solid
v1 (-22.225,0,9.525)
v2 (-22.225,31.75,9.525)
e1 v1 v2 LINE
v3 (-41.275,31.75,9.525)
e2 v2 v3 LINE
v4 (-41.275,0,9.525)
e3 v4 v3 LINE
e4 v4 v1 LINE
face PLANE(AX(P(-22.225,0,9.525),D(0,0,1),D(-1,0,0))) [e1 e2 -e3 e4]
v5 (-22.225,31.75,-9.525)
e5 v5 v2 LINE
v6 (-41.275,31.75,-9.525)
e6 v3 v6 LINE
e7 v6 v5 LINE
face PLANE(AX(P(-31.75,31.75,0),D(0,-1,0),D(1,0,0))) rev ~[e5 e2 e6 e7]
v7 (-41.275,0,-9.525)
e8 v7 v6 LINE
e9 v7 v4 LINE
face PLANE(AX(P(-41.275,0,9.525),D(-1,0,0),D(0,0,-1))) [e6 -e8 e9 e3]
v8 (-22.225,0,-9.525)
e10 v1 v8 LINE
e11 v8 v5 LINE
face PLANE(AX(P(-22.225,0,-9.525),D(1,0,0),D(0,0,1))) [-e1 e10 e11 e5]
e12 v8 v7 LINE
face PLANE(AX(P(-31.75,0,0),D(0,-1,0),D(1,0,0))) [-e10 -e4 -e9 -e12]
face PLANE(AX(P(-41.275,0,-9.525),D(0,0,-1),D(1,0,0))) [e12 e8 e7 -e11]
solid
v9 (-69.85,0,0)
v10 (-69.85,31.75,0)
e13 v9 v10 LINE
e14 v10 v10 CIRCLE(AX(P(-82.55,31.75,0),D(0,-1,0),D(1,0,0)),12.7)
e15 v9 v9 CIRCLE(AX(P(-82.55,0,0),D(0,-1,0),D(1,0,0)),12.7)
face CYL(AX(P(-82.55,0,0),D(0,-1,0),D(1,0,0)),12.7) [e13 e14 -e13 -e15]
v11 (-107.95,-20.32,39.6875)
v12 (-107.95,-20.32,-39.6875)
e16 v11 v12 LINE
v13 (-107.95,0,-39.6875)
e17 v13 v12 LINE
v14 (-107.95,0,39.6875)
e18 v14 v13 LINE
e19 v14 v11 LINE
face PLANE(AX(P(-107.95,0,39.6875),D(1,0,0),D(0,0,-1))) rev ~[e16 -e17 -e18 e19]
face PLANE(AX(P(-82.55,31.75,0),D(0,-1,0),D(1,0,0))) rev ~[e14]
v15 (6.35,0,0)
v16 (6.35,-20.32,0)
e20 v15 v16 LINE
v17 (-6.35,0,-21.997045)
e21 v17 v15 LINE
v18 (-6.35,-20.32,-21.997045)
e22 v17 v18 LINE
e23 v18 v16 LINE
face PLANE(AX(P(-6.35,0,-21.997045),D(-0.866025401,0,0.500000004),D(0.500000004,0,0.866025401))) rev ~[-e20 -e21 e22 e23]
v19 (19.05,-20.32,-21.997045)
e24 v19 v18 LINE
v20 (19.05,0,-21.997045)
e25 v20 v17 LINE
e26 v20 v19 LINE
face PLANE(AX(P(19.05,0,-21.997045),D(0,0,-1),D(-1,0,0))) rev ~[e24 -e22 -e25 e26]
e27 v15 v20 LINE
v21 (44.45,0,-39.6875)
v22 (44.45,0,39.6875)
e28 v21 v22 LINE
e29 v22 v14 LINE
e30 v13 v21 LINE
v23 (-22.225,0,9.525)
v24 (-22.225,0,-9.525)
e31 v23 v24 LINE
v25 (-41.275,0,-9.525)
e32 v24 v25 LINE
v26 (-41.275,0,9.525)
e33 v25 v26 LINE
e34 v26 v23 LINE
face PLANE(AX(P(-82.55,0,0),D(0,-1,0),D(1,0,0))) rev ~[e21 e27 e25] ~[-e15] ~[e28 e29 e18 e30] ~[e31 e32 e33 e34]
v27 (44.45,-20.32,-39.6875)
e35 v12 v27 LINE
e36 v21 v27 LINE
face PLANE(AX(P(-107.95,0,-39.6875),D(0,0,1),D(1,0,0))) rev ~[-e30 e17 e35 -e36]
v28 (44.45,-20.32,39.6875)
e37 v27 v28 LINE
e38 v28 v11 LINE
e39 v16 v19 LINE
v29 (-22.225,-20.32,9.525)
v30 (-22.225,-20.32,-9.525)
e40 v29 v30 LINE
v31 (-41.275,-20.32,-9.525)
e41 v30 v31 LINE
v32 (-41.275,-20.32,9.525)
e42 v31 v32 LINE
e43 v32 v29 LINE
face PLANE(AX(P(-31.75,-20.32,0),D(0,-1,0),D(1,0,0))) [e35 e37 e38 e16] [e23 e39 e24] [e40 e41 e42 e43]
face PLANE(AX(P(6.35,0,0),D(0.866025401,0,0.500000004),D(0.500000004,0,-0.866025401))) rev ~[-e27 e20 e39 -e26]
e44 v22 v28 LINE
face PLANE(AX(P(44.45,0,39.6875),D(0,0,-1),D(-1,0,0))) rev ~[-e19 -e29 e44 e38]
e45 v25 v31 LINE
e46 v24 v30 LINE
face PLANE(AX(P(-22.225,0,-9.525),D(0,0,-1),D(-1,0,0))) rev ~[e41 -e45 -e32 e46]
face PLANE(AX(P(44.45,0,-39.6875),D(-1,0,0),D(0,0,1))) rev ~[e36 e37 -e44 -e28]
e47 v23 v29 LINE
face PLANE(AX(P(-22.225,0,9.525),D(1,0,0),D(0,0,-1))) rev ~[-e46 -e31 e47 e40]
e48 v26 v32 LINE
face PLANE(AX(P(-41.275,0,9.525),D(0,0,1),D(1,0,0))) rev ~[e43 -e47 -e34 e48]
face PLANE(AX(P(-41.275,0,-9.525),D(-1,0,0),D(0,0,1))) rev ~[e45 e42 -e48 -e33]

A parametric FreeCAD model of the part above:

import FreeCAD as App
import Part
import Sketcher
Q = App.Units.Quantity

doc = App.newDocument("Part")
body = doc.addObject("PartDesign::Body", "Body")
body.AllowCompound = True

# Sketch on XZ plane
sketch1 = body.newObject("Sketcher::SketchObject", "Sketch")
sketch1.AttachmentSupport = (doc.getObject("XZ_Plane"), [""])
sketch1.MapMode = "FlatFace"
sketch1.addGeometry(Part.LineSegment(App.Vector(44, -40, 0), App.Vector(44, 40, 0)), False)
sketch1.addGeometry(Part.LineSegment(App.Vector(44, 40, 0), App.Vector(-108, 40, 0)), False)
sketch1.addGeometry(Part.LineSegment(App.Vector(-108, 40, 0), App.Vector(-108, -40, 0)), False)
sketch1.addGeometry(Part.LineSegment(App.Vector(-108, -40, 0), App.Vector(44, -40, 0)), False)
sketch1.addGeometry(Part.LineSegment(App.Vector(19, -22, 0), App.Vector(-6, -22, 0)), False)
sketch1.addGeometry(Part.LineSegment(App.Vector(-6, -22, 0), App.Vector(6, 0, 0)), False)
sketch1.addGeometry(Part.LineSegment(App.Vector(6, 0, 0), App.Vector(19, -22, 0)), False)
sketch1.addGeometry(Part.Circle(App.Vector(-83, 0, 0), App.Vector(0, 0, 1), 13), False)
sketch1.addGeometry(Part.LineSegment(App.Vector(-41, 10, 0), App.Vector(-22, 10, 0)), False)
sketch1.addGeometry(Part.LineSegment(App.Vector(-22, 10, 0), App.Vector(-22, -10, 0)), False)
sketch1.addGeometry(Part.LineSegment(App.Vector(-22, -10, 0), App.Vector(-41, -10, 0)), False)
sketch1.addGeometry(Part.LineSegment(App.Vector(-41, -10, 0), App.Vector(-41, 10, 0)), False)
sketch1.addConstraint(Sketcher.Constraint("Coincident", 0, 2, 1, 1))
sketch1.addConstraint(Sketcher.Constraint("Coincident", 1, 2, 2, 1))
sketch1.addConstraint(Sketcher.Constraint("Coincident", 2, 2, 3, 1))
sketch1.addConstraint(Sketcher.Constraint("Coincident", 3, 2, 0, 1))
sketch1.addConstraint(Sketcher.Constraint("Coincident", 4, 2, 5, 1))
sketch1.addConstraint(Sketcher.Constraint("Coincident", 5, 2, 6, 1))
sketch1.addConstraint(Sketcher.Constraint("Coincident", 6, 2, 4, 1))
sketch1.addConstraint(Sketcher.Constraint("Coincident", 8, 2, 9, 1))
sketch1.addConstraint(Sketcher.Constraint("Coincident", 9, 2, 10, 1))
sketch1.addConstraint(Sketcher.Constraint("Coincident", 10, 2, 11, 1))
sketch1.addConstraint(Sketcher.Constraint("Coincident", 11, 2, 8, 1))
sketch1.addConstraint(Sketcher.Constraint("Vertical", 0))
sketch1.addConstraint(Sketcher.Constraint("Horizontal", 1))
sketch1.addConstraint(Sketcher.Constraint("Vertical", 2))
sketch1.addConstraint(Sketcher.Constraint("Horizontal", 3))
sketch1.addConstraint(Sketcher.Constraint("Horizontal", 4))
sketch1.addConstraint(Sketcher.Constraint("Horizontal", 8))
sketch1.addConstraint(Sketcher.Constraint("Vertical", 9))
sketch1.addConstraint(Sketcher.Constraint("Horizontal", 10))
sketch1.addConstraint(Sketcher.Constraint("Vertical", 11))
sketch1.addConstraint(Sketcher.Constraint("PointOnObject", 7, 3, -1))
sketch1.addConstraint(Sketcher.Constraint("PointOnObject", 5, 2, -1))
sketch1.addConstraint(Sketcher.Constraint("Equal", 10, 9))
sketch1.addConstraint(Sketcher.Constraint("Equal", 5, 6))
sketch1.addConstraint(Sketcher.Constraint("Diameter", 7, Q("1 in")))
sketch1.addConstraint(Sketcher.Constraint("DistanceX", 1, 2, 1, 1, Q("6 in")))
sketch1.addConstraint(Sketcher.Constraint("DistanceX", 4, 2, 4, 1, Q("1 in")))
sketch1.addConstraint(Sketcher.Constraint("Distance", 5, Q("1 in")))
sketch1.addConstraint(Sketcher.Constraint("DistanceX", 7, 3, 0, 2, Q("5 in")))
sketch1.addConstraint(Sketcher.Constraint("DistanceX", 4, 2, 3, 2, Q("2 in")))
sketch1.addConstraint(Sketcher.Constraint("DistanceX", 8, 1, 8, 2, Q("0.75 in")))
sketch1.addConstraint(Sketcher.Constraint("DistanceY", 0, 1, 0, 2, Q("3.125 in")))
sketch1.addConstraint(Sketcher.Constraint("DistanceX", 7, 3, -1, 1, Q("3.25 in")))
sketch1.addConstraint(Sketcher.Constraint("DistanceY", -1, 1, 0, 2, Q("1.5625 in")))
sketch1.addConstraint(Sketcher.Constraint("DistanceX", 8, 2, -1, 1, Q("0.875 in")))
sketch1.addConstraint(Sketcher.Constraint("DistanceY", -1, 1, 8, 2, Q("0.375 in")))
pad1 = body.newObject("PartDesign::Pad", "Pad")
pad1.Profile = sketch1
pad1.Length = Q("0.8 in")

# Sketch on XZ plane
sketch2 = body.newObject("Sketcher::SketchObject", "Sketch001")
sketch2.AttachmentSupport = (doc.getObject("XZ_Plane"), [""])
sketch2.MapMode = "FlatFace"
sketch2.addGeometry(Part.Circle(App.Vector(-83, 0, 0), App.Vector(0, 0, 1), 13), False)
sketch2.addConstraint(Sketcher.Constraint("PointOnObject", 0, 3, -1))
sketch2.addConstraint(Sketcher.Constraint("Diameter", 0, Q("1 in")))
sketch2.addConstraint(Sketcher.Constraint("DistanceX", 0, 3, -1, 1, Q("3.25 in")))
pad2 = body.newObject("PartDesign::Pad", "Pad001")
pad2.Profile = sketch2
pad2.Length = Q("0.8 in")

# Sketch on XZ plane
sketch3 = body.newObject("Sketcher::SketchObject", "Sketch002")
sketch3.AttachmentSupport = (doc.getObject("XZ_Plane"), [""])
sketch3.MapMode = "FlatFace"
sketch3.addGeometry(Part.Circle(App.Vector(-83, 0, 0), App.Vector(0, 0, 1), 13), False)
sketch3.addConstraint(Sketcher.Constraint("PointOnObject", 0, 3, -1))
sketch3.addConstraint(Sketcher.Constraint("Diameter", 0, Q("1 in")))
sketch3.addConstraint(Sketcher.Constraint("DistanceX", 0, 3, -1, 1, Q("3.25 in")))
pad3 = body.newObject("PartDesign::Pad", "Pad002")
pad3.Profile = sketch3
pad3.Length = Q("1.25 in")
pad3.Reversed = True

# Sketch on XZ plane
sketch4 = body.newObject("Sketcher::SketchObject", "Sketch003")
sketch4.AttachmentSupport = (doc.getObject("XZ_Plane"), [""])
sketch4.MapMode = "FlatFace"
sketch4.addGeometry(Part.LineSegment(App.Vector(-22, -10, 0), App.Vector(-22, 10, 0)), False)
sketch4.addGeometry(Part.LineSegment(App.Vector(-22, 10, 0), App.Vector(-41, 10, 0)), False)
sketch4.addGeometry(Part.LineSegment(App.Vector(-41, 10, 0), App.Vector(-41, -10, 0)), False)
sketch4.addGeometry(Part.LineSegment(App.Vector(-41, -10, 0), App.Vector(-22, -10, 0)), False)
sketch4.addConstraint(Sketcher.Constraint("Coincident", 0, 2, 1, 1))
sketch4.addConstraint(Sketcher.Constraint("Coincident", 1, 2, 2, 1))
sketch4.addConstraint(Sketcher.Constraint("Coincident", 2, 2, 3, 1))
sketch4.addConstraint(Sketcher.Constraint("Coincident", 3, 2, 0, 1))
sketch4.addConstraint(Sketcher.Constraint("Vertical", 0))
sketch4.addConstraint(Sketcher.Constraint("Horizontal", 1))
sketch4.addConstraint(Sketcher.Constraint("Vertical", 2))
sketch4.addConstraint(Sketcher.Constraint("Horizontal", 3))
sketch4.addConstraint(Sketcher.Constraint("Equal", 3, 0))
sketch4.addConstraint(Sketcher.Constraint("DistanceX", 1, 2, 1, 1, Q("0.75 in")))
sketch4.addConstraint(Sketcher.Constraint("DistanceX", 0, 2, -1, 1, Q("0.875 in")))
sketch4.addConstraint(Sketcher.Constraint("DistanceY", -1, 1, 0, 2, Q("0.375 in")))
pad4 = body.newObject("PartDesign::Pad", "Pad003")
pad4.Profile = sketch4
pad4.Length = Q("1.25 in")
pad4.Reversed = True

doc.recompute()
